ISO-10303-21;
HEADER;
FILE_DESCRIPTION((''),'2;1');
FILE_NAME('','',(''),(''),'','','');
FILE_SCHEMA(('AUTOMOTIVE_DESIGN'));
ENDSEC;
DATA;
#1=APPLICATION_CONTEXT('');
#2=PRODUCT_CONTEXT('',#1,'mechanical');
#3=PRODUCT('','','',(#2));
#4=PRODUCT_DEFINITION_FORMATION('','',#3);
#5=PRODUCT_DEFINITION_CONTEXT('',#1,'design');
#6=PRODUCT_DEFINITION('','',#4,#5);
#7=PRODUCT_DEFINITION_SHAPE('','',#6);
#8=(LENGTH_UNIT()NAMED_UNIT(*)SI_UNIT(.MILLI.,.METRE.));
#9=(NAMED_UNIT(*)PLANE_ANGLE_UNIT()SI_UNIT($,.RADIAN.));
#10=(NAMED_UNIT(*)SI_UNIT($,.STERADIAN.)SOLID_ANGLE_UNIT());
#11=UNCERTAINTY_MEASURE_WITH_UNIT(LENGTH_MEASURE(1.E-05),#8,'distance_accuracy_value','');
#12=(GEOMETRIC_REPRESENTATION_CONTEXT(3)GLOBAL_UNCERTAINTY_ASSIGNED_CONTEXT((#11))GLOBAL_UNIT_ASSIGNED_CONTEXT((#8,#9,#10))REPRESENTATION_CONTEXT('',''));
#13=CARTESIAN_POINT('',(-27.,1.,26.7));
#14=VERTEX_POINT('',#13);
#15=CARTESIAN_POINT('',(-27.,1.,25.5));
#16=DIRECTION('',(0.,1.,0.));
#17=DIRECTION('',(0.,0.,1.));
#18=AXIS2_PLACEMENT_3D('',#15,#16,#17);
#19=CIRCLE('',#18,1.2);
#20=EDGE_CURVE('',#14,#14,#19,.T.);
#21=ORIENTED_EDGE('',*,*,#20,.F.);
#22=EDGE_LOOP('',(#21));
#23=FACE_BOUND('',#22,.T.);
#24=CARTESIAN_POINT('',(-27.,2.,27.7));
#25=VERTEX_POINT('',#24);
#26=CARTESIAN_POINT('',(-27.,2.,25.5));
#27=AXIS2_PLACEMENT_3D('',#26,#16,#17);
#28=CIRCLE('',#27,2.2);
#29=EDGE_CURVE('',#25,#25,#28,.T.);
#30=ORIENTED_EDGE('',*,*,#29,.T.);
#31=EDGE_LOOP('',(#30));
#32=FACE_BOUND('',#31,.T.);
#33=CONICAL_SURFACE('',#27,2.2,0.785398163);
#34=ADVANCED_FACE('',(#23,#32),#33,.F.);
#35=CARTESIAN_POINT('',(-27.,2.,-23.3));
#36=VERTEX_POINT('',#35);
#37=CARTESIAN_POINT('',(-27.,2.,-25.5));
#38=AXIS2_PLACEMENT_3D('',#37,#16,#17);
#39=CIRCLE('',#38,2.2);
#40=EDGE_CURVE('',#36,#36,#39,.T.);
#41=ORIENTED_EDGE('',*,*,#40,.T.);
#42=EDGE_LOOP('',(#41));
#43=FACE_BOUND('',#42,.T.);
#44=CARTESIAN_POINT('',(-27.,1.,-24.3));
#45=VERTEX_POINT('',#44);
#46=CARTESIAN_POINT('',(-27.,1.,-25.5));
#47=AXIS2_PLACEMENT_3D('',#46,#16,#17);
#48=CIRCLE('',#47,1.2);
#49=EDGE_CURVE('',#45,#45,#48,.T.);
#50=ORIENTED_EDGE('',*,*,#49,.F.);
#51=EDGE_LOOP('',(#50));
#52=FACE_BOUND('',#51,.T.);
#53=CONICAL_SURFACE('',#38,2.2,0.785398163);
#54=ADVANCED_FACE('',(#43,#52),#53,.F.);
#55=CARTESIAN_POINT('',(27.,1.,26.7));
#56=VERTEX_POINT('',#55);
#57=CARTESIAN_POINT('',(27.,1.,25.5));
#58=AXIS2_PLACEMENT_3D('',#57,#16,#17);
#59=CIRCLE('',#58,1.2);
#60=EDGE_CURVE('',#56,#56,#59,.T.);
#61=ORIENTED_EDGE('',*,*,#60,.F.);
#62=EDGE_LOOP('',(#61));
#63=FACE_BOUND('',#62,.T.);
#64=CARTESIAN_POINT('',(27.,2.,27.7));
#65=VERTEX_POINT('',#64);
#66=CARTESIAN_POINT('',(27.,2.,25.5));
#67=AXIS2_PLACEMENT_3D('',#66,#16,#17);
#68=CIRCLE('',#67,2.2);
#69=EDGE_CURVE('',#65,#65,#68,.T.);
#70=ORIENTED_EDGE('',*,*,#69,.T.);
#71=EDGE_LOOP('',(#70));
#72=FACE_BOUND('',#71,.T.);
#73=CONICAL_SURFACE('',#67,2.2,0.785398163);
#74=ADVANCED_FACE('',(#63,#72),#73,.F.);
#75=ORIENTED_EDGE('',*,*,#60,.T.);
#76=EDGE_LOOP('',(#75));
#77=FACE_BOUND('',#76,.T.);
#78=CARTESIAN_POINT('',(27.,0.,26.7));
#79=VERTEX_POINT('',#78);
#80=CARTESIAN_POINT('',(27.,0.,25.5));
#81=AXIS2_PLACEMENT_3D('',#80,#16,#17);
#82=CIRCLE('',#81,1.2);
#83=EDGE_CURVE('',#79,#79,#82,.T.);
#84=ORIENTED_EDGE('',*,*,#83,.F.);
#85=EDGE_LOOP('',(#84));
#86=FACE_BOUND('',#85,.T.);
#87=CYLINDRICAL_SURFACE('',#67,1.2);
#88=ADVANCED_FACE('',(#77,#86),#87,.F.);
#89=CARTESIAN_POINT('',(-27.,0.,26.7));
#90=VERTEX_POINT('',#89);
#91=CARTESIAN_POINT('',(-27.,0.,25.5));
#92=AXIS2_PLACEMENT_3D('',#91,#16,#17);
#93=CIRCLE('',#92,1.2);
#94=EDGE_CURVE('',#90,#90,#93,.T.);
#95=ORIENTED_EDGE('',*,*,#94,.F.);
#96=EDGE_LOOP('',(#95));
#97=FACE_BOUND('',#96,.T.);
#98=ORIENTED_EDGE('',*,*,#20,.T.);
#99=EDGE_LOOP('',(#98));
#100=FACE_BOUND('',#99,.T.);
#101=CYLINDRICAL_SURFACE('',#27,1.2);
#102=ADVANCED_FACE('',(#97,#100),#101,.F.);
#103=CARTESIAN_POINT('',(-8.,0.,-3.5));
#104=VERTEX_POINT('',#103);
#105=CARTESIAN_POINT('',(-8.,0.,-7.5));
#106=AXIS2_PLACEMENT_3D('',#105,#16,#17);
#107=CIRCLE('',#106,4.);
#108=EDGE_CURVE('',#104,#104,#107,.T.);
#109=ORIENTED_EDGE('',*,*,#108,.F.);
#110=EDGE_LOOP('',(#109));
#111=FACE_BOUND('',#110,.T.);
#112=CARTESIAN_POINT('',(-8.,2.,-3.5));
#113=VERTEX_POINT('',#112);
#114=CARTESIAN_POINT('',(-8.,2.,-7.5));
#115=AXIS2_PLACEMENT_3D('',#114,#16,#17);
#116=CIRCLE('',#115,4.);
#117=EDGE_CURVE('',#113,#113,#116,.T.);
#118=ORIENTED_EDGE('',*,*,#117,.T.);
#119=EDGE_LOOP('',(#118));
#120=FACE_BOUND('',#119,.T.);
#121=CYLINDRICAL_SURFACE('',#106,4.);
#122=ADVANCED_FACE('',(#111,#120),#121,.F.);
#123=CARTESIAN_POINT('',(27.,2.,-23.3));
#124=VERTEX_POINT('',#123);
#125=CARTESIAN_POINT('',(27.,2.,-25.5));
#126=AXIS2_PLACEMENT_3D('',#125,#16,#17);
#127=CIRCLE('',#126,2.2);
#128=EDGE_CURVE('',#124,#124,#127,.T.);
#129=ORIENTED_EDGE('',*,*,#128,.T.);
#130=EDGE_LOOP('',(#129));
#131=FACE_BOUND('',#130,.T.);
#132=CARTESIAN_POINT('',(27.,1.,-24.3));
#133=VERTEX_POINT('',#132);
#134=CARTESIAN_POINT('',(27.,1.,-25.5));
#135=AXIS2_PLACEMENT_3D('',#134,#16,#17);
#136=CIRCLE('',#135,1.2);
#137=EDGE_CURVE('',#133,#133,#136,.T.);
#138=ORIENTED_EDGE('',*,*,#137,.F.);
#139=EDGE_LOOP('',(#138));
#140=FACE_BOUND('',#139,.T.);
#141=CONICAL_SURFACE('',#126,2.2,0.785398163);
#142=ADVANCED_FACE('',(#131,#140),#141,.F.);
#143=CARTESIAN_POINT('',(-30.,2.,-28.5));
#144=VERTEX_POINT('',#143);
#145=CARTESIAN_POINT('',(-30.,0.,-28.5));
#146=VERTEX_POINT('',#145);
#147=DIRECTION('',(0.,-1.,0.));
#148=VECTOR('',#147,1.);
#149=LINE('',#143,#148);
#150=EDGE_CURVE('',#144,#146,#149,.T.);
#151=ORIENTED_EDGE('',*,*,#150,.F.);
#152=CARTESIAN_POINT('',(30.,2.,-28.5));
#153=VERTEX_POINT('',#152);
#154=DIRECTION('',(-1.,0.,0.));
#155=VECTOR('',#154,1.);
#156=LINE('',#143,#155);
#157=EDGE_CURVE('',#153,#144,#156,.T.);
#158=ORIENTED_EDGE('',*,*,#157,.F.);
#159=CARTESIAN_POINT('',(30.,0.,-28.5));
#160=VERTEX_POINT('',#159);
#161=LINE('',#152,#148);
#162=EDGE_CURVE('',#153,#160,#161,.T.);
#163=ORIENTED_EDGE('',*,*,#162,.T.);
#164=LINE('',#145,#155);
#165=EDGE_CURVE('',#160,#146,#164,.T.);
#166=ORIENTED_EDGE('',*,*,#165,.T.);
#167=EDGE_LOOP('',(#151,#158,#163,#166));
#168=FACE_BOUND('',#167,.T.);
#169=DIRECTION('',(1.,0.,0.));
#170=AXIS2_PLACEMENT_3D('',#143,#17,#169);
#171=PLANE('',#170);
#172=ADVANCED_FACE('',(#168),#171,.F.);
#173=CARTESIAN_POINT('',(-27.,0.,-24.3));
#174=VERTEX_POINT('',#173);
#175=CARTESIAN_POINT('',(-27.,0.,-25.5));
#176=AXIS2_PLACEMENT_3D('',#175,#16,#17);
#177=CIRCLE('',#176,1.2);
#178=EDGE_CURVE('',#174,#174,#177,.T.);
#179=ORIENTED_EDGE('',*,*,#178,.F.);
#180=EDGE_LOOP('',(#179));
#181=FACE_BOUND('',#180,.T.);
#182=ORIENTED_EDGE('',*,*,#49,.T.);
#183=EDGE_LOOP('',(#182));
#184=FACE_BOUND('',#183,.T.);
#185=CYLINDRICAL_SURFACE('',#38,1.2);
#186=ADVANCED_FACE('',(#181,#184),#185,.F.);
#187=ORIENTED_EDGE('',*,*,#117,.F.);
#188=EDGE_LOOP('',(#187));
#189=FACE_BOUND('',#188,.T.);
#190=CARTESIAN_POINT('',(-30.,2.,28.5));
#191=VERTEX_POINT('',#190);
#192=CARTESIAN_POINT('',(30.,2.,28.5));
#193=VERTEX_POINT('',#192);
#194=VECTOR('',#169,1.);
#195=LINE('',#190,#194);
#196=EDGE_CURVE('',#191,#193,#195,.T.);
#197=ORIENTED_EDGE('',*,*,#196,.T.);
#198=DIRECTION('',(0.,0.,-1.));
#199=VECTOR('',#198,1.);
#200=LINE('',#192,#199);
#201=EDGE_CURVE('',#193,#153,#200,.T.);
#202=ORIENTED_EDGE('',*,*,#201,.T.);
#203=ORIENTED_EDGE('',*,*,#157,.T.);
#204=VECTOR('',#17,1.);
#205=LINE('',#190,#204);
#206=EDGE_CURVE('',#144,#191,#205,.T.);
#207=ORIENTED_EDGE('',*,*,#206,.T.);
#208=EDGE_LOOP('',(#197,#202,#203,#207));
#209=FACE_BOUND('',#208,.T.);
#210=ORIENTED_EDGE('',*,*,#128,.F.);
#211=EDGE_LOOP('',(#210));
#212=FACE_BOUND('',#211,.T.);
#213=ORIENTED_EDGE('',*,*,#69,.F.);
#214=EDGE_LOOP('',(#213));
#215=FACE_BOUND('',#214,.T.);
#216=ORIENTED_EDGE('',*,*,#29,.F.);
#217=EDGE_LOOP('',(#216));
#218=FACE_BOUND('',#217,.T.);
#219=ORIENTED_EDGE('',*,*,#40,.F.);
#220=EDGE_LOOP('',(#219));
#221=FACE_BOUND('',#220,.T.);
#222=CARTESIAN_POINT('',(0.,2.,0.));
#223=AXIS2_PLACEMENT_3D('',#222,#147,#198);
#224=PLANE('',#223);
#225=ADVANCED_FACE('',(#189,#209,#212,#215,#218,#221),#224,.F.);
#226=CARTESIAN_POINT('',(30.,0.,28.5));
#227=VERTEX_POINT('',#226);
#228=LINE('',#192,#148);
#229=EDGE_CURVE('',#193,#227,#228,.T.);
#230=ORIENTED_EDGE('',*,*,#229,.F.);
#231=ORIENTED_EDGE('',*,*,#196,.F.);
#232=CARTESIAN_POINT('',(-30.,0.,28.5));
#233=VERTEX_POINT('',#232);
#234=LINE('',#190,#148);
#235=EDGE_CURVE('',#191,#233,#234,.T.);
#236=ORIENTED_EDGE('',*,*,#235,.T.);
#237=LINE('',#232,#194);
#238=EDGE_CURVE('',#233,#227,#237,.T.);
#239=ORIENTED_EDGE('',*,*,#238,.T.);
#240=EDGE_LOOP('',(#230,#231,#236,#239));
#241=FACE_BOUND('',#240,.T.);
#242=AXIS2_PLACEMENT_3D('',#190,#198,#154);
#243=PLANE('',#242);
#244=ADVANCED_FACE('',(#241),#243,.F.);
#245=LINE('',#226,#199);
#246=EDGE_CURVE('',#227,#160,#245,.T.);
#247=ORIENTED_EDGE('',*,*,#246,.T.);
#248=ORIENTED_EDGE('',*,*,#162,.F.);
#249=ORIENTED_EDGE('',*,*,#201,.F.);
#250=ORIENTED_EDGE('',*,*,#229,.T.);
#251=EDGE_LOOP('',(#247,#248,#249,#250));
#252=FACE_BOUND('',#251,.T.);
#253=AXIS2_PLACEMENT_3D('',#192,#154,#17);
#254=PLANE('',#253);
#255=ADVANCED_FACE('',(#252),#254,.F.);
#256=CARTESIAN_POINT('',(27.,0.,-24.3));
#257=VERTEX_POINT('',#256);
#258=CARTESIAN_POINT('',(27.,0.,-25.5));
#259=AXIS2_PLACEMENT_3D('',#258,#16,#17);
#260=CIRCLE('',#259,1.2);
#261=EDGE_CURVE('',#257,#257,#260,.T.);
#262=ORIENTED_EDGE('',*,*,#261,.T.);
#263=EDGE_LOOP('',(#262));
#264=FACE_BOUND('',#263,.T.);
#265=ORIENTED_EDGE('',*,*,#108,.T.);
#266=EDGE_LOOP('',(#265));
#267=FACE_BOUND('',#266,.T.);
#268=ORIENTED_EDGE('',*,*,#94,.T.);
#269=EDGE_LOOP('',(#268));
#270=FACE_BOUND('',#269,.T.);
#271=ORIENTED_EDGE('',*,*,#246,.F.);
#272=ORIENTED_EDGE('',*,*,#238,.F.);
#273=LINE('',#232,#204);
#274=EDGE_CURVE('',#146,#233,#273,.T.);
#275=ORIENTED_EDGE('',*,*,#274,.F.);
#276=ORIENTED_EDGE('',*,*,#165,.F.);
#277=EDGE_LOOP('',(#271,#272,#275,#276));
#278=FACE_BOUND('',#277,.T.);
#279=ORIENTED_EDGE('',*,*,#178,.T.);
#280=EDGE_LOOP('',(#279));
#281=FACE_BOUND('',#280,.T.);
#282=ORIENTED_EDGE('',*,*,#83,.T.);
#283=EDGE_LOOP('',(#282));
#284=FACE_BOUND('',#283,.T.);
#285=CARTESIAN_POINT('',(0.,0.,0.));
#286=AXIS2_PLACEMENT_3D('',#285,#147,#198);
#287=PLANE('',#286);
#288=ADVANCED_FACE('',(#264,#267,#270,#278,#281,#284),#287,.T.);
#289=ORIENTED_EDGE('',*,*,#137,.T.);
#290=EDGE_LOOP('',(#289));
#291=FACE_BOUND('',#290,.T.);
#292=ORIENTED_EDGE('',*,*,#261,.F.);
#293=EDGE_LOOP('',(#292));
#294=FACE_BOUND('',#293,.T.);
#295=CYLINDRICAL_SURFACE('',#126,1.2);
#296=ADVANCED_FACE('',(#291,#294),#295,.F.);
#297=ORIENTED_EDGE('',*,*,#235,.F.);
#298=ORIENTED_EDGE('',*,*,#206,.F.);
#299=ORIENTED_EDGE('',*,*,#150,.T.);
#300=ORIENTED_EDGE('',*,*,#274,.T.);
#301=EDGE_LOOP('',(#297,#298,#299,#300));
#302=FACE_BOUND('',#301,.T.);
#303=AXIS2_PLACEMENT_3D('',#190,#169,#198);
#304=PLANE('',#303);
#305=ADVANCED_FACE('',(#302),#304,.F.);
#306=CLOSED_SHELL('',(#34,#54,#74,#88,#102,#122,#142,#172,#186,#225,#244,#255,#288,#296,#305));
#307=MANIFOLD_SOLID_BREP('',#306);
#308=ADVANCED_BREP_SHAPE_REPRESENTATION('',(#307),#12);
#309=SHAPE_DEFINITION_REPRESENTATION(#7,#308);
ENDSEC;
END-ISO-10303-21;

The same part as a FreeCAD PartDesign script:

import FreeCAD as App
import Part
import Sketcher
Q = App.Units.Quantity

doc = App.newDocument("Part")
body = doc.addObject("PartDesign::Body", "Body")

sketch1 = body.newObject("Sketcher::SketchObject", "Sketch")
sketch1.AttachmentSupport = (doc.getObject("XZ_Plane"), [""])
sketch1.MapMode = "FlatFace"
sketch1.addGeometry(Part.LineSegment(App.Vector(-30, -28, 0), App.Vector(-30, 28, 0)), False)
sketch1.addGeometry(Part.LineSegment(App.Vector(-30, 28, 0), App.Vector(30, 28, 0)), False)
sketch1.addGeometry(Part.LineSegment(App.Vector(30, 28, 0), App.Vector(30, -28, 0)), False)
sketch1.addGeometry(Part.LineSegment(App.Vector(30, -28, 0), App.Vector(-30, -28, 0)), False)
sketch1.addConstraint(Sketcher.Constraint("Coincident", 0, 2, 1, 1))
sketch1.addConstraint(Sketcher.Constraint("Coincident", 1, 2, 2, 1))
sketch1.addConstraint(Sketcher.Constraint("Coincident", 2, 2, 3, 1))
sketch1.addConstraint(Sketcher.Constraint("Coincident", 3, 2, 0, 1))
sketch1.addConstraint(Sketcher.Constraint("Vertical", 0))
sketch1.addConstraint(Sketcher.Constraint("Horizontal", 1))
sketch1.addConstraint(Sketcher.Constraint("Vertical", 2))
sketch1.addConstraint(Sketcher.Constraint("Horizontal", 3))
sketch1.addConstraint(Sketcher.Constraint("Symmetric", 0, 2, 2, 2, -1, 1))
sketch1.addConstraint(Sketcher.Constraint("DistanceX", 1, 1, 1, 2, 60.0))
sketch1.addConstraint(Sketcher.Constraint("DistanceY", 0, 1, 0, 2, 57.0))
pad1 = body.newObject("PartDesign::Pad", "Pad")
pad1.Profile = sketch1
pad1.Length = 2
pad1.Reversed = True

sketch2 = body.newObject("Sketcher::SketchObject", "Sketch001")
sketch2.AttachmentSupport = (doc.getObject("YZ_Plane"), [""])
sketch2.MapMode = "FlatFace"
sketch2.AttachmentOffset = App.Placement(App.Vector(0, 0, -27), App.Rotation())
sketch2.addGeometry(Part.LineSegment(App.Vector(0, -25.5, 0), App.Vector(2, -25.5, 0)), False)
sketch2.addGeometry(Part.LineSegment(App.Vector(2, -25.5, 0), App.Vector(2, -23.3, 0)), False)
sketch2.addGeometry(Part.LineSegment(App.Vector(2, -23.3, 0), App.Vector(1, -24.3, 0)), False)
sketch2.addGeometry(Part.LineSegment(App.Vector(1, -24.3, 0), App.Vector(0, -24.3, 0)), False)
sketch2.addGeometry(Part.LineSegment(App.Vector(0, -24.3, 0), App.Vector(0, -25.5, 0)), False)
sketch2.addGeometry(Part.LineSegment(App.Vector(2, -25.5, 0), App.Vector(0, -25.5, 0)), True)
sketch2.addConstraint(Sketcher.Constraint("Coincident", 0, 2, 1, 1))
sketch2.addConstraint(Sketcher.Constraint("Coincident", 1, 2, 2, 1))
sketch2.addConstraint(Sketcher.Constraint("Coincident", 2, 2, 3, 1))
sketch2.addConstraint(Sketcher.Constraint("Coincident", 3, 2, 4, 1))
sketch2.addConstraint(Sketcher.Constraint("Coincident", 4, 2, 0, 1))
sketch2.addConstraint(Sketcher.Constraint("Horizontal", 0))
sketch2.addConstraint(Sketcher.Constraint("Vertical", 1))
sketch2.addConstraint(Sketcher.Constraint("Horizontal", 3))
sketch2.addConstraint(Sketcher.Constraint("Vertical", 4))
sketch2.addConstraint(Sketcher.Constraint("Horizontal", 5))
sketch2.addConstraint(Sketcher.Constraint("Coincident", 5, 1, 0, 2))
sketch2.addConstraint(Sketcher.Constraint("PointOnObject", 3, 2, -2))
sketch2.addConstraint(Sketcher.Constraint("PointOnObject", 5, 2, -2))
sketch2.addConstraint(Sketcher.Constraint("DistanceX", 0, 1, 0, 2, 2.0))
sketch2.addConstraint(Sketcher.Constraint("DistanceX", 3, 2, 3, 1, 1.0))
sketch2.addConstraint(Sketcher.Constraint("Angle", 2, Q("-135 deg")))
sketch2.addConstraint(Sketcher.Constraint("DistanceY", 1, 1, 1, 2, 2.2))
sketch2.addConstraint(Sketcher.Constraint("DistanceY", 0, 2, -1, 1, 25.5))
groove = body.newObject("PartDesign::Groove", "Groove")
groove.Profile = sketch2
groove.ReferenceAxis = (sketch2, ["Axis0"])
groove.Angle = 360
doc.recompute()

linearpattern = body.newObject("PartDesign::LinearPattern", "LinearPattern")
linearpattern.Originals = [groove]
linearpattern.Direction = (doc.getObject("X_Axis"), [""])
linearpattern.Mode = "offset"
linearpattern.Offset = 54
linearpattern.Occurrences = 2
body.Tip = linearpattern
doc.recompute()

datumline = body.newObject("PartDesign::Line", "DatumLine")
datumline.Placement = App.Placement(App.Vector(0, 0, 0), App.Rotation(App.Vector(0, 0, 1), App.Vector(0.727013153, 0, 0.686623533)))
linearpattern2 = body.newObject("PartDesign::LinearPattern", "LinearPattern001")
linearpattern2.Originals = [groove]
linearpattern2.Direction = (datumline, [""])
linearpattern2.Mode = "offset"
linearpattern2.Offset = 74.27651
linearpattern2.Occurrences = 2
body.Tip = linearpattern2
doc.recompute()

linearpattern3 = body.newObject("PartDesign::LinearPattern", "LinearPattern002")
linearpattern3.Originals = [groove]
linearpattern3.Direction = (doc.getObject("Z_Axis"), [""])
linearpattern3.Mode = "offset"
linearpattern3.Offset = 51
linearpattern3.Occurrences = 2
body.Tip = linearpattern3

sketch3 = body.newObject("Sketcher::SketchObject", "Sketch002")
sketch3.AttachmentSupport = (doc.getObject("XZ_Plane"), [""])
sketch3.MapMode = "FlatFace"
sketch3.AttachmentOffset = App.Placement(App.Vector(0, 0, -2), App.Rotation())
sketch3.addGeometry(Part.Circle(App.Vector(-8, -7.5, 0), App.Vector(0, 0, 1), 4), False)
sketch3.addConstraint(Sketcher.Constraint("Diameter", 0, 8.0))
sketch3.addConstraint(Sketcher.Constraint("DistanceX", 0, 3, -1, 1, 8.0))
sketch3.addConstraint(Sketcher.Constraint("DistanceY", 0, 3, -1, 1, 7.5))
pocket1 = body.newObject("PartDesign::Pocket", "Pocket")
pocket1.Profile = sketch3
pocket1.Length = 2
pocket1.Reversed = True

doc.recompute()
